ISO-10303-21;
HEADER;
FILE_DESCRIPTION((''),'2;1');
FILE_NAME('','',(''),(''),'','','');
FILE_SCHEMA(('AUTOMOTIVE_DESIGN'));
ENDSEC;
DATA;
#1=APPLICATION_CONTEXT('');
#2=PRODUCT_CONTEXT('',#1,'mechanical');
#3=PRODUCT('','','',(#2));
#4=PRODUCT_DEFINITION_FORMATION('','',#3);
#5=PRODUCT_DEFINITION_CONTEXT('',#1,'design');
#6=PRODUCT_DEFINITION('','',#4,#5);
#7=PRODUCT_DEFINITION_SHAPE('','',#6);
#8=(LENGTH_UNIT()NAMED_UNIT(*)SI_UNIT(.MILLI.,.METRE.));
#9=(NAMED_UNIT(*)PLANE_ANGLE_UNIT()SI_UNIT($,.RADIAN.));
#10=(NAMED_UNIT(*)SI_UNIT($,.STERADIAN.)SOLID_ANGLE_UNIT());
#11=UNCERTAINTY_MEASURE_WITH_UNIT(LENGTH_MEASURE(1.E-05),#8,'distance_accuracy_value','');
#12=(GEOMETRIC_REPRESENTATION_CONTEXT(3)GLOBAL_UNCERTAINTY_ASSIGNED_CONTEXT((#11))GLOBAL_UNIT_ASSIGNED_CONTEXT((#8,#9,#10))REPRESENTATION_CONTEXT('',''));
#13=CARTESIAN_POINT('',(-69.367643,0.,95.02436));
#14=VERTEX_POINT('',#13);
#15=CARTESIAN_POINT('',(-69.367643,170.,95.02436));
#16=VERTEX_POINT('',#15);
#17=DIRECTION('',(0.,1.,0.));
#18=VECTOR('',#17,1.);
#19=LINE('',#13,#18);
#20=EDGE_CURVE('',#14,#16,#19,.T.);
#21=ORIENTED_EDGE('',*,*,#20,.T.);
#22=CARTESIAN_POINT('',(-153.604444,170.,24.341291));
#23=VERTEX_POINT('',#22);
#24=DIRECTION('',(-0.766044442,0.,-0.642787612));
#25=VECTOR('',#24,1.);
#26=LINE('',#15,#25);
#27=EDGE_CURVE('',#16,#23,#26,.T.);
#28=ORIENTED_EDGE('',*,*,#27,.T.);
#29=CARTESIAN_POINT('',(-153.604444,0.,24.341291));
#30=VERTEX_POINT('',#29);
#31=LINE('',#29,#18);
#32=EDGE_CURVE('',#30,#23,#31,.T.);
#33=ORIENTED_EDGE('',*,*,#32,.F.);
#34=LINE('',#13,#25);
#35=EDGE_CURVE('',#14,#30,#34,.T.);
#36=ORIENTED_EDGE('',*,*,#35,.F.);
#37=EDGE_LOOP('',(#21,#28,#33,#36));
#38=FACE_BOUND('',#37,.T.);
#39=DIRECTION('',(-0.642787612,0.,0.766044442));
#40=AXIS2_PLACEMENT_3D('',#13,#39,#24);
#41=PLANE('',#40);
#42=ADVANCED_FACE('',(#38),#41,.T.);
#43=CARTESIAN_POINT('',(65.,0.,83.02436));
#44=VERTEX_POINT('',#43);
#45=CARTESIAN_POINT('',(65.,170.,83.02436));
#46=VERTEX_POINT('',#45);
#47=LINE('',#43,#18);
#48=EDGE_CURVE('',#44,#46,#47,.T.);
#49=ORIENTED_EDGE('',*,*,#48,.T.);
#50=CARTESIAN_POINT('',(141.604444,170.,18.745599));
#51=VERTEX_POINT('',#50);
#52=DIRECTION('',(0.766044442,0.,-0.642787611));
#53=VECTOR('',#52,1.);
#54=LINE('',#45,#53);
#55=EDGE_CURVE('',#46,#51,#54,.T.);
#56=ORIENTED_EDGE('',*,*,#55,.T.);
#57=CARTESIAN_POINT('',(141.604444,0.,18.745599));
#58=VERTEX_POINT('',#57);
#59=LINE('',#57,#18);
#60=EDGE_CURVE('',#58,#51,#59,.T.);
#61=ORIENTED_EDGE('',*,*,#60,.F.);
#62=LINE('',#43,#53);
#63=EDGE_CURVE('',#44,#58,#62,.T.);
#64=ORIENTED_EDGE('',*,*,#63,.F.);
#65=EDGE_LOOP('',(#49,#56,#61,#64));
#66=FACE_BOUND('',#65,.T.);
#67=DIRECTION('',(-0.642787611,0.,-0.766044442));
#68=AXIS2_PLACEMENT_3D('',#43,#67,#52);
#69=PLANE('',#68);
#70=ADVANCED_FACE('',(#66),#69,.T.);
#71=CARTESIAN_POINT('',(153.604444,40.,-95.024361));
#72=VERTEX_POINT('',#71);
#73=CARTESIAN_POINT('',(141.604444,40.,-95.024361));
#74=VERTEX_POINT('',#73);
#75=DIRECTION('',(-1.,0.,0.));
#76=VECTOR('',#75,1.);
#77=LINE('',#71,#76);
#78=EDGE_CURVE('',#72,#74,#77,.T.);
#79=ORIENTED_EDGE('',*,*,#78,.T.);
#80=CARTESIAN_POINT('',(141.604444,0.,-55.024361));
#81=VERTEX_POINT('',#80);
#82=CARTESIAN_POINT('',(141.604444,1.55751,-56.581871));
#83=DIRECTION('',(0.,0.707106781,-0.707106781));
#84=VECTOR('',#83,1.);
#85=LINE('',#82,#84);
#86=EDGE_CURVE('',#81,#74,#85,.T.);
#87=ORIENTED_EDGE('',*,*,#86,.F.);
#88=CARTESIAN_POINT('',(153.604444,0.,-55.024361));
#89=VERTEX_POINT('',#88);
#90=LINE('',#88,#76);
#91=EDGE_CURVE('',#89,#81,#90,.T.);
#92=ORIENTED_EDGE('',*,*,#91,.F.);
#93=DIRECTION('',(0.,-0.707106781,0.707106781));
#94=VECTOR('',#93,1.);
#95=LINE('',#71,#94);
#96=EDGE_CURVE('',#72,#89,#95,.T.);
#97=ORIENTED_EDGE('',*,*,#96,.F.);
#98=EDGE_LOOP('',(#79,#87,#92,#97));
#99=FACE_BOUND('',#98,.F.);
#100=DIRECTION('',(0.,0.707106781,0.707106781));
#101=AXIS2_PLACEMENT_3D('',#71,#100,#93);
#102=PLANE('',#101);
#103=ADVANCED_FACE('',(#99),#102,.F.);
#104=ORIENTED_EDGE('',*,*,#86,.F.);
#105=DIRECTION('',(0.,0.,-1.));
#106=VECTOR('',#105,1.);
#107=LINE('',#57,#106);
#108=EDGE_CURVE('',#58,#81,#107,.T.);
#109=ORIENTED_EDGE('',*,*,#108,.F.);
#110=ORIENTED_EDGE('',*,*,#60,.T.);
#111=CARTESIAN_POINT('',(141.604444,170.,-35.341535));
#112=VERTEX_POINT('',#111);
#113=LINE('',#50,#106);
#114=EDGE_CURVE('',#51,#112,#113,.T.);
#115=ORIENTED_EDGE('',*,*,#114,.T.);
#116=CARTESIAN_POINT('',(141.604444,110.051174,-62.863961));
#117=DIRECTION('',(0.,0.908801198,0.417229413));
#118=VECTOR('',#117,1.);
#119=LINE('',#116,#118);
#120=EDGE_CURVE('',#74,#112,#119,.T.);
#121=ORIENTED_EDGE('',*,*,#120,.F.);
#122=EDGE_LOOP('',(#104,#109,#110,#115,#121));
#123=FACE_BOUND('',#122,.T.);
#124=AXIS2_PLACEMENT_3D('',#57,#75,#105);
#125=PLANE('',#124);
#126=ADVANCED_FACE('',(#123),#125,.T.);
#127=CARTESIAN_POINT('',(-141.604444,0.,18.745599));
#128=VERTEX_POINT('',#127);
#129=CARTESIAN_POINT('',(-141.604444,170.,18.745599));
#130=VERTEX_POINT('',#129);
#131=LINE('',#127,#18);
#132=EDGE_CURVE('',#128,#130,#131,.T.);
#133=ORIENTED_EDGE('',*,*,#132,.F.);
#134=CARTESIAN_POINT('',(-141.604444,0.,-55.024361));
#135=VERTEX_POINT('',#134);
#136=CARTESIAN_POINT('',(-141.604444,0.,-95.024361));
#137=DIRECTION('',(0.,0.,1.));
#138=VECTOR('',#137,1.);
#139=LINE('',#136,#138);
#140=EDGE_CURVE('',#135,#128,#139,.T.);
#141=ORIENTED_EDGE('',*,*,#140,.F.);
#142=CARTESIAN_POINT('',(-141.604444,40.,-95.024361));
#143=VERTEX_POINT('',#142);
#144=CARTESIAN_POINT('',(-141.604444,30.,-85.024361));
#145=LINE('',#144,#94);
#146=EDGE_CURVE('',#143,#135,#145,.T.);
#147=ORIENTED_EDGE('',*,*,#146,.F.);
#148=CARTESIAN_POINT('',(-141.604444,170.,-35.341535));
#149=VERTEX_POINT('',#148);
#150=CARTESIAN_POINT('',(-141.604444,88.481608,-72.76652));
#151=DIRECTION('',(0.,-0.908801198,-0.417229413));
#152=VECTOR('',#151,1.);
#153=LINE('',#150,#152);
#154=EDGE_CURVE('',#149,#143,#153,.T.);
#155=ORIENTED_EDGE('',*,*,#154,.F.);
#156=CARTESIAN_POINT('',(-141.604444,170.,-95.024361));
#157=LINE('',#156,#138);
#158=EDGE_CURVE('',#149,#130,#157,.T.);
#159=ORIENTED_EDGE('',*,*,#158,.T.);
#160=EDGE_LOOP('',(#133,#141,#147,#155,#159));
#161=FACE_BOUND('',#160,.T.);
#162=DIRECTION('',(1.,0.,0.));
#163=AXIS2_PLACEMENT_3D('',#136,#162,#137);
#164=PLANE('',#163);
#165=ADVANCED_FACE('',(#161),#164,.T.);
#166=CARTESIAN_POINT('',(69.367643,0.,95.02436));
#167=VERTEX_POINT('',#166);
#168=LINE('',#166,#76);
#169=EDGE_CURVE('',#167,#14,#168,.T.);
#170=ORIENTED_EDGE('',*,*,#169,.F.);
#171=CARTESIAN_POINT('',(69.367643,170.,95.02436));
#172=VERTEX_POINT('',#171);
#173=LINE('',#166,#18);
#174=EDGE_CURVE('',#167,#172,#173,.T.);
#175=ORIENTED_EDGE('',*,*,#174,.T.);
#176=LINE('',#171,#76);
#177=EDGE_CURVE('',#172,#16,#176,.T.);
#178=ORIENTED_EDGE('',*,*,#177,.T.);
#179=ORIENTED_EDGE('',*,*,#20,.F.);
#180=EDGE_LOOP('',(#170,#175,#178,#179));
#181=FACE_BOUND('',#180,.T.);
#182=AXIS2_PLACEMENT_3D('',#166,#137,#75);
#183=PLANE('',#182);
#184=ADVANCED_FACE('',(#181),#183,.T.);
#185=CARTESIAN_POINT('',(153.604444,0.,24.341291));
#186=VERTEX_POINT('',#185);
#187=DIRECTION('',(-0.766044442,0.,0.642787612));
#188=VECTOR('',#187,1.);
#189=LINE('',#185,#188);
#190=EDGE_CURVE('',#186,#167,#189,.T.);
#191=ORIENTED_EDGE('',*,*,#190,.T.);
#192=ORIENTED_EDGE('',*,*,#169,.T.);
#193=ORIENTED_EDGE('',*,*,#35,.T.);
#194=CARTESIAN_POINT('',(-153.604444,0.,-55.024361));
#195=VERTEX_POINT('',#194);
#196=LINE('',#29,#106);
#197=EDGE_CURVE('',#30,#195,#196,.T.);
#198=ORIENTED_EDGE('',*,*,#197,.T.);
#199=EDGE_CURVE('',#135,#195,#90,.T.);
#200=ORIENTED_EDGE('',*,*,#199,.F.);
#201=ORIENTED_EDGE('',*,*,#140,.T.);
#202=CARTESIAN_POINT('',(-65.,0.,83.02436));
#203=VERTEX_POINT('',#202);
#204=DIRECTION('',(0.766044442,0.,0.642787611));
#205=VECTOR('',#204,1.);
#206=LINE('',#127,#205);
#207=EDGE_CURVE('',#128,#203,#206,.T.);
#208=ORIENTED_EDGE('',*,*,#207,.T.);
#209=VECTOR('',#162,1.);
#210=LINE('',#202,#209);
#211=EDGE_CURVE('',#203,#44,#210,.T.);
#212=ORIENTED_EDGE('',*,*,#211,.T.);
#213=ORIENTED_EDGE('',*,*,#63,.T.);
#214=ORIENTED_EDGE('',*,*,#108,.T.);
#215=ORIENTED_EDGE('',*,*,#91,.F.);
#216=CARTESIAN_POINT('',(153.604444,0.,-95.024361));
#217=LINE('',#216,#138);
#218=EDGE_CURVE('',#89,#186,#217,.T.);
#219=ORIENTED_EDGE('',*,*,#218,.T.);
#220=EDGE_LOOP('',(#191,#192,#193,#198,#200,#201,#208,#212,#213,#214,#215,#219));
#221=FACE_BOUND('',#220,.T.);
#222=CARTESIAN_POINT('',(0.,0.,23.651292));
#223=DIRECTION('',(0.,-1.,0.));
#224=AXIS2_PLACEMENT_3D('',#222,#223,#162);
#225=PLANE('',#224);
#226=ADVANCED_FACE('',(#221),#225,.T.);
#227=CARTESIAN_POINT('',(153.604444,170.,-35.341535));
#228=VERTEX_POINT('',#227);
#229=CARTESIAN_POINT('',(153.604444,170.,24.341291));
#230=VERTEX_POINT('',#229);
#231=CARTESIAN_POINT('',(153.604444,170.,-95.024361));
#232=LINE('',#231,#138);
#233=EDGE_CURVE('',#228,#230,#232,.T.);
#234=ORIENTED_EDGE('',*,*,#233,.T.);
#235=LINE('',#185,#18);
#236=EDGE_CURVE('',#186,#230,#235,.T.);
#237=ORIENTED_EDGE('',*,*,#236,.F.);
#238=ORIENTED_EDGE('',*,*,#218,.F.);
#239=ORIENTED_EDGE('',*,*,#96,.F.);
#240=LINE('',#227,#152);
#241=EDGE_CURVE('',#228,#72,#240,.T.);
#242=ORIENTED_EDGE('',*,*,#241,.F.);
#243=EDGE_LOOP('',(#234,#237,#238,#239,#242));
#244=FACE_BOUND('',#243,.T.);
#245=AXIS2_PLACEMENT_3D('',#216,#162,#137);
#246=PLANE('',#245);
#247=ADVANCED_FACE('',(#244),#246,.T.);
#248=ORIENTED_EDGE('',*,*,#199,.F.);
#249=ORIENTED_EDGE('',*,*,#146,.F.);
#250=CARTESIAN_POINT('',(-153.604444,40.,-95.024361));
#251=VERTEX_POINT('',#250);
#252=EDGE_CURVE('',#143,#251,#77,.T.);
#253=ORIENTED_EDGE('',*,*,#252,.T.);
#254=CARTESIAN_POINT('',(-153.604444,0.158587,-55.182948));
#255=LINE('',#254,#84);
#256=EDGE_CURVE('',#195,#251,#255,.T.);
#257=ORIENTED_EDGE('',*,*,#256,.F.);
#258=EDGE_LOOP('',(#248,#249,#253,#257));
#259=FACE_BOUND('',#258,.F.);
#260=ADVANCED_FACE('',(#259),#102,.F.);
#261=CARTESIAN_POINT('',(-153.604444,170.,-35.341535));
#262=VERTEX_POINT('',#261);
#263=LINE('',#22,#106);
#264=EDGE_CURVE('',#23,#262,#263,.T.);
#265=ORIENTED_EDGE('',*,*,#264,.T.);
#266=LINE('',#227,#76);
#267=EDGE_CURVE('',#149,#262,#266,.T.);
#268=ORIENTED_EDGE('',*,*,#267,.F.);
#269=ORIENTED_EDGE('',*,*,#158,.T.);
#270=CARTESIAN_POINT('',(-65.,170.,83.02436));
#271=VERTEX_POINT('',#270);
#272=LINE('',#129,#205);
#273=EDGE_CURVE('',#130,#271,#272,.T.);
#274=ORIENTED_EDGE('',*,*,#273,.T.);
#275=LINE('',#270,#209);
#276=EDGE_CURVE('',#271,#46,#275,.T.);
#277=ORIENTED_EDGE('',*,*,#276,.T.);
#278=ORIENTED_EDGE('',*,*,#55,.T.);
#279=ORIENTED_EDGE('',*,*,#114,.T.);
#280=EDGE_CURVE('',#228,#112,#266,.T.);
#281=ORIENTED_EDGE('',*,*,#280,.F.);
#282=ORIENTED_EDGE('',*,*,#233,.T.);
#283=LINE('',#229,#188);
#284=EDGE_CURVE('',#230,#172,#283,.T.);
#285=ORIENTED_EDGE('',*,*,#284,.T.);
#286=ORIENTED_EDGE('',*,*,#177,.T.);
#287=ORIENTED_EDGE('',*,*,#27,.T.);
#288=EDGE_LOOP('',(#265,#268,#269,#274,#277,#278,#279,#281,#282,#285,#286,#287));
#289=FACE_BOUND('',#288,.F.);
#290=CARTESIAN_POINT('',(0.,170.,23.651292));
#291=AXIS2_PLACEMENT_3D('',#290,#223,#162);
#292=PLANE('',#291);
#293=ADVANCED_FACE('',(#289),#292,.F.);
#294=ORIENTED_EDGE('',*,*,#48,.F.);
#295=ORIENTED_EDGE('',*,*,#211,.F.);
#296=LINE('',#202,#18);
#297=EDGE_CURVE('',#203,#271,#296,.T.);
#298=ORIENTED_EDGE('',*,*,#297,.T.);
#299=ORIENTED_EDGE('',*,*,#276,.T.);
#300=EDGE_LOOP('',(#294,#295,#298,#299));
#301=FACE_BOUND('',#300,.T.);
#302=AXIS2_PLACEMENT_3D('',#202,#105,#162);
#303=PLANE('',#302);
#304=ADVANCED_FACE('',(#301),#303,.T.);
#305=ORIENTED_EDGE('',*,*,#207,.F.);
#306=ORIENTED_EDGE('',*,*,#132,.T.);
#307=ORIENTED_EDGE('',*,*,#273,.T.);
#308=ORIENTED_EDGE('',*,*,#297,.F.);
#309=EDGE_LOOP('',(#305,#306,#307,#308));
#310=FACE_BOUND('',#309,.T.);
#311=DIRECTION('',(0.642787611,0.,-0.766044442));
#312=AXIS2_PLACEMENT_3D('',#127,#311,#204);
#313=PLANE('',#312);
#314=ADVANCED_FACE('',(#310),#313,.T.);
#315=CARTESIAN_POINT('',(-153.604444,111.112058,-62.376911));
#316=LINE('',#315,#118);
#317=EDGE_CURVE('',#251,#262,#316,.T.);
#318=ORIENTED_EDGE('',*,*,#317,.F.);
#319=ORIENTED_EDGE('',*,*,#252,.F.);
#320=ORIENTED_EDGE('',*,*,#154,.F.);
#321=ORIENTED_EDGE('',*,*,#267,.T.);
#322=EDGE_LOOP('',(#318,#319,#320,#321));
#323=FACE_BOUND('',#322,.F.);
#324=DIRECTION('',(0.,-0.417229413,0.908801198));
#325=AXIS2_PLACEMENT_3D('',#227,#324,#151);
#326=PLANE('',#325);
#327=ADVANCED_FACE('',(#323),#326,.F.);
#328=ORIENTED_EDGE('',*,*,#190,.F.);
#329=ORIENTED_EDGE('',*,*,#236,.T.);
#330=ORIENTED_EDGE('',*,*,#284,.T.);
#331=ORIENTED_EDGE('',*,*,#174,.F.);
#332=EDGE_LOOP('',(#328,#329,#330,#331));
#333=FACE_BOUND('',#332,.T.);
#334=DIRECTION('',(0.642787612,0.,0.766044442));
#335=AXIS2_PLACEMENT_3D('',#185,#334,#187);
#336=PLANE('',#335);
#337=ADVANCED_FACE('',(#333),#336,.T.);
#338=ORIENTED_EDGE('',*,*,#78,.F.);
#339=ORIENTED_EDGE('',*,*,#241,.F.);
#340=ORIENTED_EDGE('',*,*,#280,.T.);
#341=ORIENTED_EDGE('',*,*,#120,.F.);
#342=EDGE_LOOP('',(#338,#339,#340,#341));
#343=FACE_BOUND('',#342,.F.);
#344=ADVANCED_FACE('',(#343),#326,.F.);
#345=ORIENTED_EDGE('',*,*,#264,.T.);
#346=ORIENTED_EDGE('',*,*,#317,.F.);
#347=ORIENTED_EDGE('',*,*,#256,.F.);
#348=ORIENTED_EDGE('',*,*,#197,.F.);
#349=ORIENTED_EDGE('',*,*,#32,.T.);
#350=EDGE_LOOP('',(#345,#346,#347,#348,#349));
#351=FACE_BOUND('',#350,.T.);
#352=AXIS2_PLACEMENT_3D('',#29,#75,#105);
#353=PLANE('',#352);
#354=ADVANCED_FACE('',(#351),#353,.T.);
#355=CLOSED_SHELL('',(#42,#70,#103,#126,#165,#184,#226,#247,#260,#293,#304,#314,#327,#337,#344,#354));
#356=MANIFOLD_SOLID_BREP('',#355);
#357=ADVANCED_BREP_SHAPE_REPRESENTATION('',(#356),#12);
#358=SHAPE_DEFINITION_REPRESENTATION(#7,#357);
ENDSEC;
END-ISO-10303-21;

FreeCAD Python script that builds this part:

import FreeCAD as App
import Part
import Sketcher
Q = App.Units.Quantity


def add_polygon(sketch, points):
    """Adds a closed chain of lines whose ends are joined by coincident constraints."""
    first, n = sketch.GeometryCount, len(points)
    for a, b in zip(points, points[1:] + points[:1]):
        sketch.addGeometry(Part.LineSegment(App.Vector(*a, 0), App.Vector(*b, 0)), False)
    for i in range(n):
        sketch.addConstraint(Sketcher.Constraint("Coincident", first + i, 2, first + (i + 1) % n, 1))

doc = App.newDocument("Part")
body = doc.addObject("PartDesign::Body", "Body")

# Sketch on XZ plane
sketch1 = body.newObject("Sketcher::SketchObject", "Sketch")
sketch1.AttachmentSupport = (doc.getObject("XZ_Plane"), [""])
sketch1.MapMode = "FlatFace"
add_polygon(sketch1, [(-142, 19), (-65, 83), (65, 83), (142, 19), (142, -95), (154, -95), (154, 24), (69, 95), (-69, 95), (-154, 24), (-154, -95), (-142, -95)])  # lines 0-11
sketch1.addConstraint(Sketcher.Constraint("Horizontal", 1))
sketch1.addConstraint(Sketcher.Constraint("Vertical", 3))
sketch1.addConstraint(Sketcher.Constraint("Horizontal", 4))
sketch1.addConstraint(Sketcher.Constraint("Vertical", 5))
sketch1.addConstraint(Sketcher.Constraint("Horizontal", 7))
sketch1.addConstraint(Sketcher.Constraint("Vertical", 9))
sketch1.addConstraint(Sketcher.Constraint("Horizontal", 10))
sketch1.addConstraint(Sketcher.Constraint("Vertical", 11))
sketch1.addConstraint(Sketcher.Constraint("Symmetric", 5, 2, 8, 2, -2))
sketch1.addConstraint(Sketcher.Constraint("Symmetric", 3, 2, 10, 2, -2))
sketch1.addConstraint(Sketcher.Constraint("Parallel", 2, 6))
sketch1.addConstraint(Sketcher.Constraint("Parallel", 0, 8))
sketch1.addConstraint(Sketcher.Constraint("Horizontal", 2, 2, 11, 2))
sketch1.addConstraint(Sketcher.Constraint("Equal", 0, 2))
sketch1.addConstraint(Sketcher.Constraint("DistanceX", 1, 1, 1, 2, 130.0))
sketch1.addConstraint(Sketcher.Constraint("DistanceX", 4, 1, 4, 2, 12.0))
sketch1.addConstraint(Sketcher.Constraint("Angle", 0, Q("40 deg")))
sketch1.addConstraint(Sketcher.Constraint("Distance", 0, 100.0))
sketch1.addConstraint(Sketcher.Constraint("DistanceY", 1, 2, 6, 2, 12.0))
sketch1.addConstraint(Sketcher.Constraint("DistanceY", 3, 2, 3, 1, 113.76996))
sketch1.addConstraint(Sketcher.Constraint("DistanceY", 5, 1, 5, 2, 119.365652))
sketch1.addConstraint(Sketcher.Constraint("DistanceY", -1, 1, 2, 2, 18.745599))
pad1 = body.newObject("PartDesign::Pad", "Pad")
pad1.Profile = sketch1
pad1.Length = 170
pad1.Reversed = True

# Sketch on YZ plane
sketch2 = body.newObject("Sketcher::SketchObject", "Sketch001")
sketch2.AttachmentSupport = (doc.getObject("YZ_Plane"), [""])
sketch2.MapMode = "FlatFace"
sketch2.AttachmentOffset = App.Placement(App.Vector(0, 0, 153.604444), App.Rotation())
add_polygon(sketch2, [(170, -35), (40, -95), (170, -95)])  # lines 0-2
sketch2.addConstraint(Sketcher.Constraint("Horizontal", 1))
sketch2.addConstraint(Sketcher.Constraint("Vertical", 2))
sketch2.addConstraint(Sketcher.Constraint("DistanceX", 1, 1, 1, 2, 130.0))
sketch2.addConstraint(Sketcher.Constraint("DistanceX", -1, 1, 0, 2, 40.0))
sketch2.addConstraint(Sketcher.Constraint("DistanceY", 2, 1, 2, 2, 59.682826))
sketch2.addConstraint(Sketcher.Constraint("DistanceY", 0, 2, -1, 1, 95.024361))
pocket1 = body.newObject("PartDesign::Pocket", "Pocket")
pocket1.Profile = sketch2
pocket1.Length = 350

# Sketch on YZ plane
sketch3 = body.newObject("Sketcher::SketchObject", "Sketch002")
sketch3.AttachmentSupport = (doc.getObject("YZ_Plane"), [""])
sketch3.MapMode = "FlatFace"
sketch3.AttachmentOffset = App.Placement(App.Vector(0, 0, 153.604444), App.Rotation())
add_polygon(sketch3, [(0, -95), (40, -95), (0, -55)])  # lines 0-2
sketch3.addConstraint(Sketcher.Constraint("Horizontal", 0))
sketch3.addConstraint(Sketcher.Constraint("Vertical", 2))
sketch3.addConstraint(Sketcher.Constraint("PointOnObject", 1, 2, -2))
sketch3.addConstraint(Sketcher.Constraint("Equal", 0, 2))
sketch3.addConstraint(Sketcher.Constraint("DistanceX", 0, 1, 0, 2, 40.0))
sketch3.addConstraint(Sketcher.Constraint("DistanceY", 0, 2, -1, 1, 95.024361))
pocket2 = body.newObject("PartDesign::Pocket", "Pocket001")
pocket2.Profile = sketch3
pocket2.Length = 400

doc.recompute()
